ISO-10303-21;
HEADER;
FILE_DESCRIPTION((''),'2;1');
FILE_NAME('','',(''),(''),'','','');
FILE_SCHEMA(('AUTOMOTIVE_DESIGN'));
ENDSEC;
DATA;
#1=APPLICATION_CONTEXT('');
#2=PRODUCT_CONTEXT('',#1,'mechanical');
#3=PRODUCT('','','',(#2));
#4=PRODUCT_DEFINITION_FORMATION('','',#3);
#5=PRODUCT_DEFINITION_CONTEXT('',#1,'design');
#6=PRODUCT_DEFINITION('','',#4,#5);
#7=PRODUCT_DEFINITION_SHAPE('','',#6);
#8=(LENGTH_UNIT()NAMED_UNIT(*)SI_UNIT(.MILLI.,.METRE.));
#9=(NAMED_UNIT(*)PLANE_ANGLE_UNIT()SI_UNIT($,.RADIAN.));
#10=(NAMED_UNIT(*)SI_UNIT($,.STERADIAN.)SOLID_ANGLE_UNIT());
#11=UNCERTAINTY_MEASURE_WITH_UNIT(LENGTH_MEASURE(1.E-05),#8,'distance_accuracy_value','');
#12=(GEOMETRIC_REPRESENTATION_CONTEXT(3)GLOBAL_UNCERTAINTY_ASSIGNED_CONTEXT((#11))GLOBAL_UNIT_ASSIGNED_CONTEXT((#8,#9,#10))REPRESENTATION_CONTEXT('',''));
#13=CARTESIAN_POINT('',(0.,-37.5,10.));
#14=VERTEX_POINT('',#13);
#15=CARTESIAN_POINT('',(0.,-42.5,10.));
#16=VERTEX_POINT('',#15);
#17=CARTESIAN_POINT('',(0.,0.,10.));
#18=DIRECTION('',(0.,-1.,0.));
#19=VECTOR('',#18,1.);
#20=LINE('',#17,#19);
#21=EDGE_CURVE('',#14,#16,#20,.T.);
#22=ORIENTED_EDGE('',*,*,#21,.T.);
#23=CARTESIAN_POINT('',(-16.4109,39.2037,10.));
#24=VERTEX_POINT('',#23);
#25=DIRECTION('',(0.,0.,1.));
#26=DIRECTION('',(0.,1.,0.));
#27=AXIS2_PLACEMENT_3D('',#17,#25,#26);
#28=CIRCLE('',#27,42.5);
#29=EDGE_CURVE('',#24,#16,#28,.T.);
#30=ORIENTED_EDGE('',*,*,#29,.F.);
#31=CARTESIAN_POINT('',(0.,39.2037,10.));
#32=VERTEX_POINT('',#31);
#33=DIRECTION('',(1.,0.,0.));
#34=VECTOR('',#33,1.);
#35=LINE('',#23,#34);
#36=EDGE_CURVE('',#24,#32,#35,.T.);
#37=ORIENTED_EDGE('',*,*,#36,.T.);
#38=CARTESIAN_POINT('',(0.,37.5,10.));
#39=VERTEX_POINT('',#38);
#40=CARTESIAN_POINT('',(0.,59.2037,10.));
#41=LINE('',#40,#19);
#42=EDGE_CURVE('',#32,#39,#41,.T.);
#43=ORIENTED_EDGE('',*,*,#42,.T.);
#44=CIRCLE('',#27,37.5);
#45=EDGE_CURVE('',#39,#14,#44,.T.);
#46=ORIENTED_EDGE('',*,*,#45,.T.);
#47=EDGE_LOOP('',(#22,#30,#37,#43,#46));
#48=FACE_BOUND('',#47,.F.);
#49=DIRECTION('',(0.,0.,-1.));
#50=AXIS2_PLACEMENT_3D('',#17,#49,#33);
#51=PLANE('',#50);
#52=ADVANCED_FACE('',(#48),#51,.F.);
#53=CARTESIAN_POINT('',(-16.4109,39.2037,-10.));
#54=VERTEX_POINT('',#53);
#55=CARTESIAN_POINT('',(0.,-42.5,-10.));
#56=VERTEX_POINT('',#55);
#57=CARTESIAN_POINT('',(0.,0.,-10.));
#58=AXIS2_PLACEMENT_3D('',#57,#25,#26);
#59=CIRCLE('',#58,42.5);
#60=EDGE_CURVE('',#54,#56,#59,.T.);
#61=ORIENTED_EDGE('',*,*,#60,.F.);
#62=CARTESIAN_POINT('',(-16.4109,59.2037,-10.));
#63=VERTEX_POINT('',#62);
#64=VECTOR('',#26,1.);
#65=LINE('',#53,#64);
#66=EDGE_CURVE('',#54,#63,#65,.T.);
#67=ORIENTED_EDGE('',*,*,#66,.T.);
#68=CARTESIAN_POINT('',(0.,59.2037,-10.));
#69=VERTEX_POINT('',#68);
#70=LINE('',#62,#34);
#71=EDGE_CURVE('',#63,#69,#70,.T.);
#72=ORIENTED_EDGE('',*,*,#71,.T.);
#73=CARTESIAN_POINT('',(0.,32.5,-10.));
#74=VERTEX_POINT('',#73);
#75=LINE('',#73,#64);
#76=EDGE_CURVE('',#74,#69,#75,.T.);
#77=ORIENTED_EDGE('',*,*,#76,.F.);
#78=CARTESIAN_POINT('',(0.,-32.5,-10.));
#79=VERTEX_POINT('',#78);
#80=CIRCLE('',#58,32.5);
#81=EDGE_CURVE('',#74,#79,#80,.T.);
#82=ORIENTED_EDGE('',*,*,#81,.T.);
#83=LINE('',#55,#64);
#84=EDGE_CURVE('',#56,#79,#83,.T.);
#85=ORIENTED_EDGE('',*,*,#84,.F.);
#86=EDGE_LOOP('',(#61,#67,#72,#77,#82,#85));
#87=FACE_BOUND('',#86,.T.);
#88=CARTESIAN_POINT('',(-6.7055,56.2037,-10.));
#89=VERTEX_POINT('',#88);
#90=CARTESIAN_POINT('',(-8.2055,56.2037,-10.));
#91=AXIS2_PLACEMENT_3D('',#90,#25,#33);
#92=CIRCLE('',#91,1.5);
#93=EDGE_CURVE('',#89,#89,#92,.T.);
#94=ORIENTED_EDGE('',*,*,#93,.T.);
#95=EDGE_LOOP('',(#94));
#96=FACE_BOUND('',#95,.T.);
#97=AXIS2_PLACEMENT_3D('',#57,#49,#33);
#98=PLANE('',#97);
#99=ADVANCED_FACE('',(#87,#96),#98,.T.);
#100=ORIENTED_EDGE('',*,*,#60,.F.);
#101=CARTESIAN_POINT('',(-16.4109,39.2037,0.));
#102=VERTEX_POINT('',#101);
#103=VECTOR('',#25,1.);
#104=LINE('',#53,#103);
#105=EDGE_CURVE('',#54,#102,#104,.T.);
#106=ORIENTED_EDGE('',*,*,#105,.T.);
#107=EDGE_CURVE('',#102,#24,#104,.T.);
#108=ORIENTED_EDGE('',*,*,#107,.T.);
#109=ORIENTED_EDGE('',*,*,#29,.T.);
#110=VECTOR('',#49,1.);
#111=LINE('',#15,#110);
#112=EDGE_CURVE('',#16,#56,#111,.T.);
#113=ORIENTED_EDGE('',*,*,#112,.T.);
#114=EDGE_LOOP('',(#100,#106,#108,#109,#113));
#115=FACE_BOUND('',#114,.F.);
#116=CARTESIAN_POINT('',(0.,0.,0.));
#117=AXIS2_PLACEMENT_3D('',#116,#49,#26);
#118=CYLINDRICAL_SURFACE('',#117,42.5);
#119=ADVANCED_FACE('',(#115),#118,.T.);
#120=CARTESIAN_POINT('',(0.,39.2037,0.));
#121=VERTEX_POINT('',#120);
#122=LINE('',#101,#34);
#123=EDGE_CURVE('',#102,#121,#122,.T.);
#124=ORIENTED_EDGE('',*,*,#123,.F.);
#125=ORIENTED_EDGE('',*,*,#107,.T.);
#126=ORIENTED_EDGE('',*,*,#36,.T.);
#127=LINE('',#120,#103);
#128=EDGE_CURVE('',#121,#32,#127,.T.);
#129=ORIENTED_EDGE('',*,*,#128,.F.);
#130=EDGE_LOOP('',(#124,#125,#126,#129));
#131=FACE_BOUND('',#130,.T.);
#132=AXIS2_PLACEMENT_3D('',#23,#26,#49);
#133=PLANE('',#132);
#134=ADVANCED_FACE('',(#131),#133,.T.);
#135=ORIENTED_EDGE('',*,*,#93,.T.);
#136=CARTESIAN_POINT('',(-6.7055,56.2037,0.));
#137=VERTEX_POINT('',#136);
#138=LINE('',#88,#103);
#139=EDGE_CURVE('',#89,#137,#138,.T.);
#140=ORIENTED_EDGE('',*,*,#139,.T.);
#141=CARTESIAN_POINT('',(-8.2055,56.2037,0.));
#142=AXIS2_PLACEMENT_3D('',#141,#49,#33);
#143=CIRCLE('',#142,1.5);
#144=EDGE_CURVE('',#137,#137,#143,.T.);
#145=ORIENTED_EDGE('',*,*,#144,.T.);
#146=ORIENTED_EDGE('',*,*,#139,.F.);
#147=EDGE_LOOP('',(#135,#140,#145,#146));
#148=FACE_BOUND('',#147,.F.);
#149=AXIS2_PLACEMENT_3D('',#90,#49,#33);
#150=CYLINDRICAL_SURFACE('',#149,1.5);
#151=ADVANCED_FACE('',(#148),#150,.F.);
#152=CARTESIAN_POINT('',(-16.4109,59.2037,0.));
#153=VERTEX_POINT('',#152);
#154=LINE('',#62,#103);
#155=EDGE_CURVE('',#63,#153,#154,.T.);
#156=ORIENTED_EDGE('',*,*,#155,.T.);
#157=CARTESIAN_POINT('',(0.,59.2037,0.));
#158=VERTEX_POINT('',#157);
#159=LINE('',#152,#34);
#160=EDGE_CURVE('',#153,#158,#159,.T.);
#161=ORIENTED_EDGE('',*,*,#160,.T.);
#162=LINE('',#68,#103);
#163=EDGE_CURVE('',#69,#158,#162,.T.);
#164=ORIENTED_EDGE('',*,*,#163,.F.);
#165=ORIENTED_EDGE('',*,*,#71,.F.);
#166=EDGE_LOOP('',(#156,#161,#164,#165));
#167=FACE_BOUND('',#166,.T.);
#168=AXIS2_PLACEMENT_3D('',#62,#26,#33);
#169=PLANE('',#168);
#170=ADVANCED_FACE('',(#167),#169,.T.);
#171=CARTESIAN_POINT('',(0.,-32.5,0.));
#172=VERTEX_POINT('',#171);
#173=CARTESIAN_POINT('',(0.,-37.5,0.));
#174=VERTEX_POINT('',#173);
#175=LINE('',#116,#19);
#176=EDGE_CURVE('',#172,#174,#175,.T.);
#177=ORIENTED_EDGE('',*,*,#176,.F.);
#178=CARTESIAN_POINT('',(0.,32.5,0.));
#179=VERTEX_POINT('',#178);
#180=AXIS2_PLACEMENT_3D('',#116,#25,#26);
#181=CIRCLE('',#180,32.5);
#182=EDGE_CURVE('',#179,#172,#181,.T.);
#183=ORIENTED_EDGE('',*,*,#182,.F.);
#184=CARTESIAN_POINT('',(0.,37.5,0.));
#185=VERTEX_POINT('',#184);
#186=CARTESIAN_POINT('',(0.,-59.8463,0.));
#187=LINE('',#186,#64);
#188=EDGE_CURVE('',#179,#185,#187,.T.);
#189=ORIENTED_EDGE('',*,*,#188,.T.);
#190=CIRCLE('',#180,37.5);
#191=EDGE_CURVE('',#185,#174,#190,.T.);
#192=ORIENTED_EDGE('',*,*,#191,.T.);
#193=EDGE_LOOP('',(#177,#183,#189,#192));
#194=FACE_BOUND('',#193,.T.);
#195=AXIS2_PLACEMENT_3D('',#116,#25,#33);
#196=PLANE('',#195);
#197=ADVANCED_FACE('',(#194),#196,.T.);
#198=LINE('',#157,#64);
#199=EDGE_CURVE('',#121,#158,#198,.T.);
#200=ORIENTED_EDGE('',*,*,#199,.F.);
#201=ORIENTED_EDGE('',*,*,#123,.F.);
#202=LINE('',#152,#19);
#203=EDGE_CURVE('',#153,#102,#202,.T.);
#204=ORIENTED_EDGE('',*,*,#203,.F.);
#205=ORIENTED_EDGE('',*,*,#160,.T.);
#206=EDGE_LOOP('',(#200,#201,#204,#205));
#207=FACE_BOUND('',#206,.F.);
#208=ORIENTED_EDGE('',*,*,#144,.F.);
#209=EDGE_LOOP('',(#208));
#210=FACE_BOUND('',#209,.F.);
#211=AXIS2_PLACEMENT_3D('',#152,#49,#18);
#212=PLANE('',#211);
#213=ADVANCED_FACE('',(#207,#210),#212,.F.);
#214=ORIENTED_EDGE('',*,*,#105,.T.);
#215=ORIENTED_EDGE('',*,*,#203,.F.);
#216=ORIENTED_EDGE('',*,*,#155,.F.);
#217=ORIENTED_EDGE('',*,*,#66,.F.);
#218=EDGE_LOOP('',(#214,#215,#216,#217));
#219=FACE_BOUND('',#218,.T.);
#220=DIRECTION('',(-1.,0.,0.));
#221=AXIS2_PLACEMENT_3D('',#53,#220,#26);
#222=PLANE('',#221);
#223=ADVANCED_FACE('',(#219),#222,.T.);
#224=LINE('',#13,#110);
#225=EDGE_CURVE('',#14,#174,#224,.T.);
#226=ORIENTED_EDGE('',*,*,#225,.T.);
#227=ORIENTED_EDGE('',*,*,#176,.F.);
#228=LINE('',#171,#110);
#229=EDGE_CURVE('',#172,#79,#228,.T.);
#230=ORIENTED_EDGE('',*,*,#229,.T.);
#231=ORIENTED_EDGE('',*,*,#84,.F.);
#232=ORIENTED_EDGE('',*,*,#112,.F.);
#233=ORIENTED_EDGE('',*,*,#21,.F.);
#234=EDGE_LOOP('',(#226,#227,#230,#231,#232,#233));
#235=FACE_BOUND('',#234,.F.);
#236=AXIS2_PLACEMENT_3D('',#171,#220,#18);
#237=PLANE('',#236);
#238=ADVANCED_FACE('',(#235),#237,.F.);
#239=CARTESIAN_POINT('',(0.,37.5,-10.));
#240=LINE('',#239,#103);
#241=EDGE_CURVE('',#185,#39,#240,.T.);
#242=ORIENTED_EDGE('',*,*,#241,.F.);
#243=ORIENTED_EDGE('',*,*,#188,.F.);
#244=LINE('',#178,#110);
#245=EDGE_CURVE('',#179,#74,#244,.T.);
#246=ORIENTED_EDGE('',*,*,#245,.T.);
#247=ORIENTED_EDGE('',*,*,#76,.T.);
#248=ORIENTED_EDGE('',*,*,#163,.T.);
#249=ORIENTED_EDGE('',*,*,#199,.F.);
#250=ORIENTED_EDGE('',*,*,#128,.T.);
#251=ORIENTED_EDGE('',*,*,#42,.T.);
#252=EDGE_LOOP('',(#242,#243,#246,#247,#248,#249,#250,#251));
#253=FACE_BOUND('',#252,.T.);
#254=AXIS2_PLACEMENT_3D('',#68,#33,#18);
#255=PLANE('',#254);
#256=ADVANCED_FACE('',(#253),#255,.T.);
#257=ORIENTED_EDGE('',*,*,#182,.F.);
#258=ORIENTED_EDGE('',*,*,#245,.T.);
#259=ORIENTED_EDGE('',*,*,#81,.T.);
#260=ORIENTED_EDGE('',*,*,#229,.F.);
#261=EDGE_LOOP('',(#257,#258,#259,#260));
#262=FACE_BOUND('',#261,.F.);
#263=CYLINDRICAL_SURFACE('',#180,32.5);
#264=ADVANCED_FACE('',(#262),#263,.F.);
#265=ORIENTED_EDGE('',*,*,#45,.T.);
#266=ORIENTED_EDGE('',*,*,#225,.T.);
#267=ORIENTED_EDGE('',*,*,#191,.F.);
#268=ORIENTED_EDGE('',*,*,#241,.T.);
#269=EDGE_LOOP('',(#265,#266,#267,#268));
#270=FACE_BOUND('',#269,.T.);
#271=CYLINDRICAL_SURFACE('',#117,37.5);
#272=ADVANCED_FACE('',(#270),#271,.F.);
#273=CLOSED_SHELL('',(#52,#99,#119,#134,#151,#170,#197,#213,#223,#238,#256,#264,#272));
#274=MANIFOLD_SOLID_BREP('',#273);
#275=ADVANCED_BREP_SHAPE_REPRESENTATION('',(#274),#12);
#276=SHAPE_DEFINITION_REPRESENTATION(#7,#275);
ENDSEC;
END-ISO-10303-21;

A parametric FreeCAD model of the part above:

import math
import FreeCAD as App
import Part
import Sketcher
from FreeCAD import Vector
Q = App.Units.Quantity

doc = App.newDocument("Part")
params = doc.addObject("Spreadsheet::Sheet", "Params")
for row, (alias, value) in enumerate([
    ("sketch1_radius", "32.5 mm"),
    ("sketch1_radius2", "37.5 mm"),
    ("pad1_length", "10 mm"),
    ("sketch2_radius", "37.5 mm"),
    ("sketch2_radius2", "42.5 mm"),
    ("pad2_length", "20 mm"),
    ("sketch3_height", "20 mm"),
    ("sketch3_radius", "42.5 mm"),
    ("pad3_length", "20 mm"),
    ("sketch4_diameter", "3 mm"),
    ("pocket1_length", "20 mm"),
    ("sketch5_height", "10 mm"),
    ("sketch5_width", "20 mm"),
    ("pocket2_length", "20 mm"),
], start=1):
    params.set(f"A{row}", alias)
    params.set(f"B{row}", "=" + value)
    params.setAlias(f"B{row}", alias)

body = doc.addObject("PartDesign::Body", "Body")

# Sketch on XY plane
sketch1 = body.newObject("Sketcher::SketchObject", "Sketch")
sketch1.AttachmentSupport = (doc.getObject("XY_Plane"), [""])
sketch1.MapMode = "FlatFace"
sketch1.addGeometry([
    Part.ArcOfCircle(Part.Circle(Vector(0, 0, 0), Vector(0, 0, 1), 32), math.radians(90), math.radians(270)),
    Part.LineSegment(Vector(0, 32, 0), Vector(0, 38, 0)),
    Part.ArcOfCircle(Part.Circle(Vector(0, 0, 0), Vector(0, 0, 1), 38), math.radians(90), math.radians(270)),
    Part.LineSegment(Vector(0, -38, 0), Vector(0, -32, 0)),
], False)
sketch1.addConstraint([
    Sketcher.Constraint("Coincident", 0, 1, 1, 1),
    Sketcher.Constraint("Coincident", 1, 2, 2, 1),
    Sketcher.Constraint("Coincident", 2, 2, 3, 1),
    Sketcher.Constraint("Coincident", 3, 2, 0, 2),
    Sketcher.Constraint("Vertical", 1),
    Sketcher.Constraint("Vertical", 3),
    Sketcher.Constraint("Coincident", 0, 3, -1, 1),
    Sketcher.Constraint("Coincident", 2, 3, -1, 1),
    Sketcher.Constraint("PointOnObject", 0, 1, -2),
    Sketcher.Constraint("PointOnObject", 2, 2, -2),
    Sketcher.Constraint("Radius", 0, Q("32.5 mm")),
    Sketcher.Constraint("Radius", 2, Q("37.5 mm")),
])
sketch1.setExpression("Constraints[10]", "Params.sketch1_radius")
sketch1.setExpression("Constraints[11]", "Params.sketch1_radius2")
pad1 = body.newObject("PartDesign::Pad", "Pad")
pad1.Profile = sketch1
pad1.setExpression("Length", "Params.pad1_length")
pad1.Reversed = True

# Sketch on XY plane
sketch2 = body.newObject("Sketcher::SketchObject", "Sketch001")
sketch2.AttachmentSupport = (doc.getObject("XY_Plane"), [""])
sketch2.MapMode = "FlatFace"
sketch2.addGeometry([
    Part.ArcOfCircle(Part.Circle(Vector(0, 0, 0), Vector(0, 0, 1), 38), math.radians(90), math.radians(270)),
    Part.LineSegment(Vector(0, 38, 0), Vector(0, 42, 0)),
    Part.ArcOfCircle(Part.Circle(Vector(0, 0, 0), Vector(0, 0, 1), 42), math.radians(90), math.radians(270)),
    Part.LineSegment(Vector(0, -42, 0), Vector(0, -38, 0)),
], False)
sketch2.addConstraint([
    Sketcher.Constraint("Coincident", 0, 1, 1, 1),
    Sketcher.Constraint("Coincident", 1, 2, 2, 1),
    Sketcher.Constraint("Coincident", 2, 2, 3, 1),
    Sketcher.Constraint("Coincident", 3, 2, 0, 2),
    Sketcher.Constraint("Vertical", 1),
    Sketcher.Constraint("Vertical", 3),
    Sketcher.Constraint("Coincident", 0, 3, -1, 1),
    Sketcher.Constraint("Coincident", 2, 3, -1, 1),
    Sketcher.Constraint("PointOnObject", 0, 1, -2),
    Sketcher.Constraint("PointOnObject", 2, 2, -2),
    Sketcher.Constraint("Radius", 0, Q("37.5 mm")),
    Sketcher.Constraint("Radius", 2, Q("42.5 mm")),
])
sketch2.setExpression("Constraints[10]", "Params.sketch2_radius")
sketch2.setExpression("Constraints[11]", "Params.sketch2_radius2")
pad2 = body.newObject("PartDesign::Pad", "Pad001")
pad2.Profile = sketch2
pad2.setExpression("Length", "Params.pad2_length")
pad2.Midplane = True

# Sketch on XY plane
sketch3 = body.newObject("Sketcher::SketchObject", "Sketch002")
sketch3.AttachmentSupport = (doc.getObject("XY_Plane"), [""])
sketch3.MapMode = "FlatFace"
sketch3.AttachmentOffset = App.Placement(Vector(0, 0, -10), App.Rotation())
sketch3.addGeometry([
    Part.ArcOfCircle(Part.Circle(Vector(0, 0, 0), Vector(0, 0, 1), 42), math.radians(90), math.radians(113)),
    Part.LineSegment(Vector(-16, 39, 0), Vector(-16, 59, 0)),
    Part.LineSegment(Vector(-16, 59, 0), Vector(0, 59, 0)),
    Part.LineSegment(Vector(0, 59, 0), Vector(0, 42, 0)),
], False)
sketch3.addConstraint([
    Sketcher.Constraint("Coincident", 0, 2, 1, 1),
    Sketcher.Constraint("Coincident", 1, 2, 2, 1),
    Sketcher.Constraint("Coincident", 2, 2, 3, 1),
    Sketcher.Constraint("Coincident", 3, 2, 0, 1),
    Sketcher.Constraint("Vertical", 1),
    Sketcher.Constraint("Horizontal", 2),
    Sketcher.Constraint("Vertical", 3),
    Sketcher.Constraint("Coincident", 0, 3, -1, 1),
    Sketcher.Constraint("PointOnObject", 2, 2, -2),
    Sketcher.Constraint("DistanceY", 1, 1, 1, 2, Q("20 mm")),
    Sketcher.Constraint("Radius", 0, Q("42.5 mm")),
    Sketcher.Constraint("DistanceX", 2, 1, 2, 2, Q("16.411 mm")),
])
sketch3.setExpression("Constraints[9]", "Params.sketch3_height")
sketch3.setExpression("Constraints[10]", "Params.sketch3_radius")
pad3 = body.newObject("PartDesign::Pad", "Pad002")
pad3.Profile = sketch3
pad3.setExpression("Length", "Params.pad3_length")

# Sketch on XY plane
sketch4 = body.newObject("Sketcher::SketchObject", "Sketch003")
sketch4.AttachmentSupport = (doc.getObject("XY_Plane"), [""])
sketch4.MapMode = "FlatFace"
sketch4.AttachmentOffset = App.Placement(Vector(0, 0, -10), App.Rotation())
sketch4.addGeometry(Part.Circle(Vector(-8.2, 56.2, 0), Vector(0, 0, 1), 1.5), False)
sketch4.addConstraint([
    Sketcher.Constraint("Diameter", 0, Q("3 mm")),
    Sketcher.Constraint("DistanceX", 0, 3, -1, 1, Q("8.2055 mm")),
    Sketcher.Constraint("DistanceY", -1, 1, 0, 3, Q("56.2037 mm")),
])
sketch4.setExpression("Constraints[0]", "Params.sketch4_diameter")
pocket1 = body.newObject("PartDesign::Pocket", "Pocket")
pocket1.Profile = sketch4
pocket1.setExpression("Length", "Params.pocket1_length")
pocket1.Reversed = True

# Sketch on YZ plane
sketch5 = body.newObject("Sketcher::SketchObject", "Sketch004")
sketch5.AttachmentSupport = (doc.getObject("YZ_Plane"), [""])
sketch5.MapMode = "FlatFace"
sketch5.AttachmentOffset = App.Placement(Vector(0, 0, -16.4109), App.Rotation())
sketch5.addGeometry([
    Part.LineSegment(Vector(59, 10, 0), Vector(59, 0, 0)),
    Part.LineSegment(Vector(59, 0, 0), Vector(39, 0, 0)),
    Part.LineSegment(Vector(39, 0, 0), Vector(39, 10, 0)),
    Part.LineSegment(Vector(39, 10, 0), Vector(59, 10, 0)),
], False)
sketch5.addConstraint([
    Sketcher.Constraint("Coincident", 0, 2, 1, 1),
    Sketcher.Constraint("Coincident", 1, 2, 2, 1),
    Sketcher.Constraint("Coincident", 2, 2, 3, 1),
    Sketcher.Constraint("Coincident", 3, 2, 0, 1),
    Sketcher.Constraint("Vertical", 0),
    Sketcher.Constraint("Horizontal", 1),
    Sketcher.Constraint("Vertical", 2),
    Sketcher.Constraint("Horizontal", 3),
    Sketcher.Constraint("PointOnObject", 0, 2, -1),
    Sketcher.Constraint("DistanceY", 0, 2, 0, 1, Q("10 mm")),
    Sketcher.Constraint("DistanceX", 1, 2, 1, 1, Q("20 mm")),
    Sketcher.Constraint("DistanceX", -1, 1, 0, 2, Q("59.2037 mm")),
])
sketch5.setExpression("Constraints[9]", "Params.sketch5_height")
sketch5.setExpression("Constraints[10]", "Params.sketch5_width")
pocket2 = body.newObject("PartDesign::Pocket", "Pocket001")
pocket2.Profile = sketch5
pocket2.setExpression("Length", "Params.pocket2_length")
pocket2.Reversed = True

doc.recompute()
